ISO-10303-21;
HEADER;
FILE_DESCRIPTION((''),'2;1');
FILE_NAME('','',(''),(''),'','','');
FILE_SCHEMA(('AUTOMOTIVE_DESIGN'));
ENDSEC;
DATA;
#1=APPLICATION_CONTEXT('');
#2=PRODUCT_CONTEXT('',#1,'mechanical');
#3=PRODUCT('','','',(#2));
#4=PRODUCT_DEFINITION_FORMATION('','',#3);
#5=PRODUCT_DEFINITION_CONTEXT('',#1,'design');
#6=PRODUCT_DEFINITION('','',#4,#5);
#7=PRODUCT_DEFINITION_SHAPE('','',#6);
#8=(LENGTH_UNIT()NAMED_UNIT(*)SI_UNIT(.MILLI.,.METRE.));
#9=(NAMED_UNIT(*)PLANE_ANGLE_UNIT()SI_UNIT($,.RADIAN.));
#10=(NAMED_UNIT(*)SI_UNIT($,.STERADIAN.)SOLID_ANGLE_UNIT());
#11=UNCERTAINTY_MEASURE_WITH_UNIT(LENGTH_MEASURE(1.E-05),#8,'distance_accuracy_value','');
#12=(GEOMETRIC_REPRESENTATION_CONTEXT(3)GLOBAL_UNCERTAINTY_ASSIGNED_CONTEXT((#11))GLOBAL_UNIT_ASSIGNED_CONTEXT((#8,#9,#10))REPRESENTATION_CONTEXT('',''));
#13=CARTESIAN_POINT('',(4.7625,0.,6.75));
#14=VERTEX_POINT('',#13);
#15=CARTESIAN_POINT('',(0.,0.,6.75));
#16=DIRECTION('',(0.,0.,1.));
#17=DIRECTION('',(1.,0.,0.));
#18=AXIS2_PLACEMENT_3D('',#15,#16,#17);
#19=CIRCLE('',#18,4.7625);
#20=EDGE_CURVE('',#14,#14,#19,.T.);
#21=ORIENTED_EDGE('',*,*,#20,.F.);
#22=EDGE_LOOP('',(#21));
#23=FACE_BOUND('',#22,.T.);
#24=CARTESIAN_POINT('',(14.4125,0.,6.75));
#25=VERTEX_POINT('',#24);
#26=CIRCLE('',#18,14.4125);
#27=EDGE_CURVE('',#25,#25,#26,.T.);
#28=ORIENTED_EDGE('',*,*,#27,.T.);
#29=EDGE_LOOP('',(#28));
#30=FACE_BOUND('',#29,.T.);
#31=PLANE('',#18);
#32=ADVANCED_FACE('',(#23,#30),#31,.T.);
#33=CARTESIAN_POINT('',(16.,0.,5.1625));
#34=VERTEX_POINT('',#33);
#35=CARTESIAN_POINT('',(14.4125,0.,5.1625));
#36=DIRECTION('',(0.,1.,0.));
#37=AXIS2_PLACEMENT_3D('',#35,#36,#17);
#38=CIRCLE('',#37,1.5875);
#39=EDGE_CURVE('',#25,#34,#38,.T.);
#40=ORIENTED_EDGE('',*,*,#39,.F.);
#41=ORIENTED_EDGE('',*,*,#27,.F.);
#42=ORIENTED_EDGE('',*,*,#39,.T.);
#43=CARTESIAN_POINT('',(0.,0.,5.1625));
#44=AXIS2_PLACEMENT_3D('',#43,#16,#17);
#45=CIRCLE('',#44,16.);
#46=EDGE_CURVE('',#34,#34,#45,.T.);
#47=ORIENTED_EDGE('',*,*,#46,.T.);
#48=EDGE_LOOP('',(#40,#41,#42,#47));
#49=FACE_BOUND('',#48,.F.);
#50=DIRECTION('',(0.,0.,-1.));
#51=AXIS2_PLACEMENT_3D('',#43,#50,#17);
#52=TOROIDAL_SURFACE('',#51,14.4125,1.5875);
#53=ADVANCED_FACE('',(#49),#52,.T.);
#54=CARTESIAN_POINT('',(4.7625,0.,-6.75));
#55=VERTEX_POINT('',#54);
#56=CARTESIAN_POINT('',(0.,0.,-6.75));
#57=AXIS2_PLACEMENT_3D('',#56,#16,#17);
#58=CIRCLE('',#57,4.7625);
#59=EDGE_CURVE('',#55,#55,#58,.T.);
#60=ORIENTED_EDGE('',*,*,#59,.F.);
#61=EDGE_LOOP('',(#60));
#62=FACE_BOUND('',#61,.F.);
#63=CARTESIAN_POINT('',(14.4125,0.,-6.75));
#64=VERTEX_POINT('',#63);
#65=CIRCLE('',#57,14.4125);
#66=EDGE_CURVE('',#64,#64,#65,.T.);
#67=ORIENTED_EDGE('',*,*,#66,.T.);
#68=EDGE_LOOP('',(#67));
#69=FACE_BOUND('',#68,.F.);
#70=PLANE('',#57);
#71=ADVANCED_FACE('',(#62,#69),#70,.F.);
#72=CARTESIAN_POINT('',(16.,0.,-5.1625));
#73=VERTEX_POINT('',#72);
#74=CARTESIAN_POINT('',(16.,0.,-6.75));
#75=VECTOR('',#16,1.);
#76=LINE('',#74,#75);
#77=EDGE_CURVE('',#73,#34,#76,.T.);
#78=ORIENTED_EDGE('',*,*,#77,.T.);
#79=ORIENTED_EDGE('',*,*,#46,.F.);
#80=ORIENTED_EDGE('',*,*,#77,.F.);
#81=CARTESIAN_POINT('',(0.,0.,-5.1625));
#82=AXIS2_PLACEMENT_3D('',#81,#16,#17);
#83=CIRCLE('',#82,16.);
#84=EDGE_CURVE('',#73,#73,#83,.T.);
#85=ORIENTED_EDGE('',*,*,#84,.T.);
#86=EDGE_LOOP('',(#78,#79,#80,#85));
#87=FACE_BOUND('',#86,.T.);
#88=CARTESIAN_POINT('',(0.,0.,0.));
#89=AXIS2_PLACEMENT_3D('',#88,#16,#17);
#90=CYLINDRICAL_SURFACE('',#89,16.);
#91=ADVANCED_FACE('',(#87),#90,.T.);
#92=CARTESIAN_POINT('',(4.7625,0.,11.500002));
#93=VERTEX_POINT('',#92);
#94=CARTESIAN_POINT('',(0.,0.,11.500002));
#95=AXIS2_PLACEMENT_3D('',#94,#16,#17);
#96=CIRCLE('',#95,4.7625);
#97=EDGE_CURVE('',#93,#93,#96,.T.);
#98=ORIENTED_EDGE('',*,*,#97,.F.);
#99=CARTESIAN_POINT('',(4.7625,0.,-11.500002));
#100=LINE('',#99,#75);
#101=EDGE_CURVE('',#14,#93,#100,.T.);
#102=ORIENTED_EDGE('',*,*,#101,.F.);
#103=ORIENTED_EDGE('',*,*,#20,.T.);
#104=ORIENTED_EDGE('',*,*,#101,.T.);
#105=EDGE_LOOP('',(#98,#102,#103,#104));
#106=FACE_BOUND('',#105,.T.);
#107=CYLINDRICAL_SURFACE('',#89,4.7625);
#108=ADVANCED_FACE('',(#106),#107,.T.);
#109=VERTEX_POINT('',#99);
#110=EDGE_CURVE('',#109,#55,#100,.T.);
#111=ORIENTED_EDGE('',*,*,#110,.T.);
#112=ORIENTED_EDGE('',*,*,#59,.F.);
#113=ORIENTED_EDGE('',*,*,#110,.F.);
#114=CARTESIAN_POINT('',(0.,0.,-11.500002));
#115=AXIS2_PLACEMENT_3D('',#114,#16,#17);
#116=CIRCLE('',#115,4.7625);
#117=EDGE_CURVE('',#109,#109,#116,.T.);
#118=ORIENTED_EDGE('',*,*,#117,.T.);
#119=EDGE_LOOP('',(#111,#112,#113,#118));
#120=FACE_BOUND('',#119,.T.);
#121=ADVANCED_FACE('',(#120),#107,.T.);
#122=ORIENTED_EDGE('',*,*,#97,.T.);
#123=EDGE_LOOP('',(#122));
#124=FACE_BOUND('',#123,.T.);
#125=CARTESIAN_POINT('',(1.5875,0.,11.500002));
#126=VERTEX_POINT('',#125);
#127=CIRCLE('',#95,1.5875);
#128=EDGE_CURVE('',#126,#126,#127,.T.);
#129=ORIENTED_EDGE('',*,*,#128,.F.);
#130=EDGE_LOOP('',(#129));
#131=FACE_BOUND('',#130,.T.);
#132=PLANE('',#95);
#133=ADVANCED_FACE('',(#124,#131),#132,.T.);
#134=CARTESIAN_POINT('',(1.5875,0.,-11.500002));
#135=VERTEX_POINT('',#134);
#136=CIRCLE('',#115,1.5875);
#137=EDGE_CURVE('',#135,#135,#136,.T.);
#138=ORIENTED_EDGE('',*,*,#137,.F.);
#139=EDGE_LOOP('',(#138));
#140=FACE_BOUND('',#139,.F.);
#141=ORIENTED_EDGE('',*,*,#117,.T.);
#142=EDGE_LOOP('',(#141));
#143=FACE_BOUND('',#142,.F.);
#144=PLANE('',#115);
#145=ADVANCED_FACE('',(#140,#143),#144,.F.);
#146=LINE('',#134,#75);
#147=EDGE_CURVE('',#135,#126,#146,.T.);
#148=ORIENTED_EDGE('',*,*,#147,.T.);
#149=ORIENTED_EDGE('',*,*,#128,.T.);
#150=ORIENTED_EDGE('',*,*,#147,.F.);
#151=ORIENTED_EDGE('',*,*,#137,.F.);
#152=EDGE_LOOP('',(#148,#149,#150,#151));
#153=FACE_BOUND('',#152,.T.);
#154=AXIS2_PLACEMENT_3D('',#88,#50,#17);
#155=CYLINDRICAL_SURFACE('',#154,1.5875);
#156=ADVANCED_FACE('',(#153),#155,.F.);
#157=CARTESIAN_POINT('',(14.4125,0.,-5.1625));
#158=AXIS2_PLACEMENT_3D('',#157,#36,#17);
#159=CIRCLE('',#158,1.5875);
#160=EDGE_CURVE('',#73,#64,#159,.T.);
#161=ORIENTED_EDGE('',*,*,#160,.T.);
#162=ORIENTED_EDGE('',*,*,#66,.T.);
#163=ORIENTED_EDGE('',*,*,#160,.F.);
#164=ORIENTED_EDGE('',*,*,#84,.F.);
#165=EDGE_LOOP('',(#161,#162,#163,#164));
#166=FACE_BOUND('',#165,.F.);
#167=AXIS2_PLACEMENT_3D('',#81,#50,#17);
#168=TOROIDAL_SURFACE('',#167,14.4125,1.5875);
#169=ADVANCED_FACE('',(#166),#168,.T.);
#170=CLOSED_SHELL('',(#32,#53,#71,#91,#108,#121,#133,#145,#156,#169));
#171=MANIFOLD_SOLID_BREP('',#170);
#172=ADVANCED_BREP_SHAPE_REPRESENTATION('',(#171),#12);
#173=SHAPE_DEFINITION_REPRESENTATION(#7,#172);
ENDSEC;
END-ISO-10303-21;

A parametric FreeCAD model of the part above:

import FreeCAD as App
import Part
import Sketcher
Q = App.Units.Quantity


def edges_at(feature, points):
    """Names of the edges that pass closest to the given points."""
    edges = feature.Shape.Edges
    near = lambda p: min(range(len(edges)), key=lambda i: edges[i].distToShape(Part.Vertex(*p))[0])
    return sorted({f"Edge{near(p) + 1}" for p in points})

doc = App.newDocument("Part")
body = doc.addObject("PartDesign::Body", "Body")

# Sketch on XY plane
sketch1 = doc.addObject("Sketcher::SketchObject", "Sketch")
body.addObject(sketch1)
sketch1.AttachmentSupport = (doc.XY_Plane, [""])
sketch1.MapMode = "FlatFace"
sketch1.addGeometry([
    Part.Circle(App.Vector(0, 0, 0), App.Vector(0, 0, 1), 16),
    Part.Circle(App.Vector(0, 0, 0), App.Vector(0, 0, 1), 1.6),
], False)
sketch1.addConstraint([
    Sketcher.Constraint("Coincident", 0, 3, -1, 1),
    Sketcher.Constraint("Coincident", 1, 3, -1, 1),
    Sketcher.Constraint("Diameter", 1, Q("0.125 in")),
    Sketcher.Constraint("Diameter", 0, 32.0),
])
pad1 = doc.addObject("PartDesign::Pad", "Pad")
body.addObject(pad1)
pad1.Profile = sketch1
pad1.Length = 13.5
pad1.Midplane = True

# Sketch on XY plane
sketch2 = doc.addObject("Sketcher::SketchObject", "Sketch001")
body.addObject(sketch2)
sketch2.AttachmentSupport = (doc.XY_Plane, [""])
sketch2.MapMode = "FlatFace"
sketch2.addGeometry([
    Part.Circle(App.Vector(0, 0, 0), App.Vector(0, 0, 1), 4.8),
    Part.Circle(App.Vector(0, 0, 0), App.Vector(0, 0, 1), 1.6),
], False)
sketch2.addConstraint([
    Sketcher.Constraint("Coincident", 0, 3, -1, 1),
    Sketcher.Constraint("Coincident", 1, 3, -1, 1),
    Sketcher.Constraint("Diameter", 0, Q("0.375 in")),
    Sketcher.Constraint("Diameter", 1, Q("0.125 in")),
])
pad2 = doc.addObject("PartDesign::Pad", "Pad001")
body.addObject(pad2)
pad2.Profile = sketch2
pad2.Length = 23.000004
pad2.Midplane = True
doc.recompute()

fillet = doc.addObject("PartDesign::Fillet", "Fillet")
body.addObject(fillet)
fillet.Base = (pad2, edges_at(pad2, [(-16, 0, 6.75), (-16, 0, -6.75)]))
fillet.Radius = Q("0.0625 in")

doc.recompute()
